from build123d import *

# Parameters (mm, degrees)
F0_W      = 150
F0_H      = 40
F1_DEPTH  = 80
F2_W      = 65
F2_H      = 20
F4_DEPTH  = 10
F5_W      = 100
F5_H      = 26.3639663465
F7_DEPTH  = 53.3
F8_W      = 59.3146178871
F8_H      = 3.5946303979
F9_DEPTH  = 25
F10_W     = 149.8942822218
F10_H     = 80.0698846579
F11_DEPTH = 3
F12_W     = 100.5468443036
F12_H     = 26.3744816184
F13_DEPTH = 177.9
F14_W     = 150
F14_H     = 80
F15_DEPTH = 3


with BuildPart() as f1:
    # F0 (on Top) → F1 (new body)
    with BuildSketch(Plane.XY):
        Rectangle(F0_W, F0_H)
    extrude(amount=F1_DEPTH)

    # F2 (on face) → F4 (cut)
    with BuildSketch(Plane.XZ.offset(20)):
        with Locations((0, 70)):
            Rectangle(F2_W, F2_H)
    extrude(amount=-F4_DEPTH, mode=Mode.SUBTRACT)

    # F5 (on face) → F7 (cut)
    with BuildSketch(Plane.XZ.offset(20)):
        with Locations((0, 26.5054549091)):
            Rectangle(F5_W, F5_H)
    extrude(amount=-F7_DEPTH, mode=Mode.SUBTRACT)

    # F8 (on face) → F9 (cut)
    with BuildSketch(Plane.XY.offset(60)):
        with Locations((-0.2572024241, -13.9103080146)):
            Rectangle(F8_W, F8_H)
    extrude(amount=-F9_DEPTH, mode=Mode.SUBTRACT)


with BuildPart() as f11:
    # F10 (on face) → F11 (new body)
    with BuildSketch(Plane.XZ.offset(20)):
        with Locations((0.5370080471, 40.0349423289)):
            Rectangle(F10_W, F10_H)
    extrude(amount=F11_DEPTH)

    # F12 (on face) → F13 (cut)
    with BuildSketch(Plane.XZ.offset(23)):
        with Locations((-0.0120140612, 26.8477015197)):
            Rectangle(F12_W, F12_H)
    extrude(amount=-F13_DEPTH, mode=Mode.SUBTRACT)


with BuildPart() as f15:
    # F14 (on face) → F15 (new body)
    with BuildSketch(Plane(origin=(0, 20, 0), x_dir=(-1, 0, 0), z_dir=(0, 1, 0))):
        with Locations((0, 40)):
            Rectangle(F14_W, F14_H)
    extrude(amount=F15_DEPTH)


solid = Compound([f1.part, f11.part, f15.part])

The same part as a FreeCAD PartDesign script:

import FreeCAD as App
import Part
import Sketcher

V = App.Vector


def add_polygon(sketch, points):
    """Adds a closed chain of lines whose ends are joined by coincident constraints."""
    first, n = sketch.GeometryCount, len(points)
    for a, b in zip(points, points[1:] + points[:1]):
        sketch.addGeometry(Part.LineSegment(App.Vector(*a, 0), App.Vector(*b, 0)), False)
    for i in range(n):
        sketch.addConstraint(Sketcher.Constraint("Coincident", first + i, 2, first + (i + 1) % n, 1))

doc = App.newDocument("Part")
body = doc.addObject("PartDesign::Body", "Body")

# Sketch on XY plane
sketch1 = doc.addObject("Sketcher::SketchObject", "Sketch")
body.addObject(sketch1)
sketch1.AttachmentSupport = (doc.XY_Plane, [""])
sketch1.MapMode = "FlatFace"
add_polygon(sketch1, [(-75, 20), (-75, -20), (75, -20), (75, 20)])  # lines 0-3
sketch1.addConstraint([
    Sketcher.Constraint("Vertical", 0),
    Sketcher.Constraint("Horizontal", 1),
    Sketcher.Constraint("Vertical", 2),
    Sketcher.Constraint("Horizontal", 3),
    Sketcher.Constraint("Symmetric", 0, 2, 2, 2, -1, 1),
    Sketcher.Constraint("DistanceX", 1, 1, 1, 2, 150.0),
    Sketcher.Constraint("DistanceY", 0, 2, 0, 1, 40.0),
])
pad1 = doc.addObject("PartDesign::Pad", "Pad")
body.addObject(pad1)
pad1.Profile = sketch1
pad1.Length = 80

# Sketch on XZ plane
sketch2 = doc.addObject("Sketcher::SketchObject", "Sketch001")
body.addObject(sketch2)
sketch2.AttachmentSupport = (doc.XZ_Plane, [""])
sketch2.MapMode = "FlatFace"
sketch2.AttachmentOffset = App.Placement(V(0, 0, 20), App.Rotation())
add_polygon(sketch2, [(-32.5, 80), (-32.5, 60), (32.5, 60), (32.5, 80)])  # lines 0-3
sketch2.addConstraint([
    Sketcher.Constraint("Vertical", 0),
    Sketcher.Constraint("Horizontal", 1),
    Sketcher.Constraint("Vertical", 2),
    Sketcher.Constraint("Horizontal", 3),
    Sketcher.Constraint("DistanceX", 1, 1, 1, 2, 65.0),
    Sketcher.Constraint("DistanceY", 0, 2, 0, 1, 20.0),
    Sketcher.Constraint("DistanceY", -1, 1, 0, 2, 60.0),
    Sketcher.Constraint("DistanceX", 0, 2, -1, 1, 32.5),
])
pocket1 = doc.addObject("PartDesign::Pocket", "Pocket")
body.addObject(pocket1)
pocket1.Profile = sketch2
pocket1.Length = 10

# Sketch on XZ plane
sketch3 = doc.addObject("Sketcher::SketchObject", "Sketch002")
body.addObject(sketch3)
sketch3.AttachmentSupport = (doc.XZ_Plane, [""])
sketch3.MapMode = "FlatFace"
sketch3.AttachmentOffset = App.Placement(V(0, 0, 20), App.Rotation())
add_polygon(sketch3, [(-50, 39.687438), (-50, 13.323472), (50, 13.323472), (50, 39.687438)])  # lines 0-3
sketch3.addConstraint([
    Sketcher.Constraint("Vertical", 0),
    Sketcher.Constraint("Horizontal", 1),
    Sketcher.Constraint("Vertical", 2),
    Sketcher.Constraint("Horizontal", 3),
    Sketcher.Constraint("DistanceX", 1, 1, 1, 2, 100.0),
    Sketcher.Constraint("DistanceX", 0, 2, -1, 1, 50.0),
    Sketcher.Constraint("DistanceY", 0, 2, 0, 1, 26.363966),
    Sketcher.Constraint("DistanceY", -1, 1, 0, 2, 13.323472),
])
pocket2 = doc.addObject("PartDesign::Pocket", "Pocket001")
body.addObject(pocket2)
pocket2.Profile = sketch3
pocket2.Length = 53.3

# Sketch on XY plane
sketch4 = doc.addObject("Sketcher::SketchObject", "Sketch003")
body.addObject(sketch4)
sketch4.AttachmentSupport = (doc.XY_Plane, [""])
sketch4.MapMode = "FlatFace"
sketch4.AttachmentOffset = App.Placement(V(0, 0, 60), App.Rotation())
add_polygon(sketch4, [(-29.914511, -12.112993), (-29.914511, -15.707623), (29.400107, -15.707623), (29.400107, -12.112993)])  # lines 0-3
sketch4.addConstraint([
    Sketcher.Constraint("Vertical", 0),
    Sketcher.Constraint("Horizontal", 1),
    Sketcher.Constraint("Vertical", 2),
    Sketcher.Constraint("Horizontal", 3),
    Sketcher.Constraint("DistanceY", 0, 2, 0, 1, 3.59463),
    Sketcher.Constraint("DistanceX", 1, 1, 1, 2, 59.314618),
    Sketcher.Constraint("DistanceX", 0, 2, -1, 1, 29.914511),
    Sketcher.Constraint("DistanceY", 0, 2, -1, 1, 15.707623),
])
pocket3 = doc.addObject("PartDesign::Pocket", "Pocket002")
body.addObject(pocket3)
pocket3.Profile = sketch4
pocket3.Length = 25
body2 = doc.addObject("PartDesign::Body", "Body001")

# Sketch on XZ plane
sketch5 = doc.addObject("Sketcher::SketchObject", "Sketch004")
body2.addObject(sketch5)
sketch5.AttachmentSupport = (doc.getObject("XZ_Plane001"), [""])
sketch5.MapMode = "FlatFace"
sketch5.AttachmentOffset = App.Placement(V(0, 0, 20), App.Rotation())
add_polygon(sketch5, [(-74.410133, 80.069885), (-74.410133, 0), (75.484149, 0), (75.484149, 80.069885)])  # lines 0-3
sketch5.addConstraint([
    Sketcher.Constraint("Vertical", 0),
    Sketcher.Constraint("Horizontal", 1),
    Sketcher.Constraint("Vertical", 2),
    Sketcher.Constraint("Horizontal", 3),
    Sketcher.Constraint("PointOnObject", 0, 2, -1),
    Sketcher.Constraint("DistanceX", 1, 1, 1, 2, 149.894282),
    Sketcher.Constraint("DistanceY", 0, 2, 0, 1, 80.069885),
    Sketcher.Constraint("DistanceX", -1, 1, 1, 2, 75.484149),
])
pad2 = doc.addObject("PartDesign::Pad", "Pad001")
body2.addObject(pad2)
pad2.Profile = sketch5
pad2.Length = 3

# Sketch on XZ plane
sketch6 = doc.addObject("Sketcher::SketchObject", "Sketch005")
body2.addObject(sketch6)
sketch6.AttachmentSupport = (doc.getObject("XZ_Plane001"), [""])
sketch6.MapMode = "FlatFace"
sketch6.AttachmentOffset = App.Placement(V(0, 0, 23), App.Rotation())
add_polygon(sketch6, [(-50.285436, 40.034942), (-50.285436, 13.660461), (50.261408, 13.660461), (50.261408, 40.034942)])  # lines 0-3
sketch6.addConstraint([
    Sketcher.Constraint("Vertical", 0),
    Sketcher.Constraint("Horizontal", 1),
    Sketcher.Constraint("Vertical", 2),
    Sketcher.Constraint("Horizontal", 3),
    Sketcher.Constraint("DistanceY", 0, 2, 0, 1, 26.374482),
    Sketcher.Constraint("DistanceX", 1, 1, 1, 2, 100.546844),
    Sketcher.Constraint("DistanceY", -1, 1, 0, 2, 13.660461),
    Sketcher.Constraint("DistanceX", -1, 1, 1, 2, 50.261408),
])
pocket4 = doc.addObject("PartDesign::Pocket", "Pocket003")
body2.addObject(pocket4)
pocket4.Profile = sketch6
pocket4.Length = 177.9
body3 = doc.addObject("PartDesign::Body", "Body002")

# Sketch on XZ plane
sketch7 = doc.addObject("Sketcher::SketchObject", "Sketch006")
body3.addObject(sketch7)
sketch7.AttachmentSupport = (doc.getObject("XZ_Plane002"), [""])
sketch7.MapMode = "FlatFace"
sketch7.AttachmentOffset = App.Placement(V(0, 0, -20), App.Rotation())
add_polygon(sketch7, [(75, 80), (75, 0), (-75, 0), (-75, 80)])  # lines 0-3
sketch7.addConstraint([
    Sketcher.Constraint("Vertical", 0),
    Sketcher.Constraint("Horizontal", 1),
    Sketcher.Constraint("Vertical", 2),
    Sketcher.Constraint("Horizontal", 3),
    Sketcher.Constraint("Symmetric", 0, 2, 1, 2, -1, 1),
    Sketcher.Constraint("DistanceX", 1, 2, 1, 1, 150.0),
    Sketcher.Constraint("DistanceY", 0, 2, 0, 1, 80.0),
])
pad3 = doc.addObject("PartDesign::Pad", "Pad002")
body3.addObject(pad3)
pad3.Profile = sketch7
pad3.Length = 3
pad3.Reversed = True

doc.recompute()
